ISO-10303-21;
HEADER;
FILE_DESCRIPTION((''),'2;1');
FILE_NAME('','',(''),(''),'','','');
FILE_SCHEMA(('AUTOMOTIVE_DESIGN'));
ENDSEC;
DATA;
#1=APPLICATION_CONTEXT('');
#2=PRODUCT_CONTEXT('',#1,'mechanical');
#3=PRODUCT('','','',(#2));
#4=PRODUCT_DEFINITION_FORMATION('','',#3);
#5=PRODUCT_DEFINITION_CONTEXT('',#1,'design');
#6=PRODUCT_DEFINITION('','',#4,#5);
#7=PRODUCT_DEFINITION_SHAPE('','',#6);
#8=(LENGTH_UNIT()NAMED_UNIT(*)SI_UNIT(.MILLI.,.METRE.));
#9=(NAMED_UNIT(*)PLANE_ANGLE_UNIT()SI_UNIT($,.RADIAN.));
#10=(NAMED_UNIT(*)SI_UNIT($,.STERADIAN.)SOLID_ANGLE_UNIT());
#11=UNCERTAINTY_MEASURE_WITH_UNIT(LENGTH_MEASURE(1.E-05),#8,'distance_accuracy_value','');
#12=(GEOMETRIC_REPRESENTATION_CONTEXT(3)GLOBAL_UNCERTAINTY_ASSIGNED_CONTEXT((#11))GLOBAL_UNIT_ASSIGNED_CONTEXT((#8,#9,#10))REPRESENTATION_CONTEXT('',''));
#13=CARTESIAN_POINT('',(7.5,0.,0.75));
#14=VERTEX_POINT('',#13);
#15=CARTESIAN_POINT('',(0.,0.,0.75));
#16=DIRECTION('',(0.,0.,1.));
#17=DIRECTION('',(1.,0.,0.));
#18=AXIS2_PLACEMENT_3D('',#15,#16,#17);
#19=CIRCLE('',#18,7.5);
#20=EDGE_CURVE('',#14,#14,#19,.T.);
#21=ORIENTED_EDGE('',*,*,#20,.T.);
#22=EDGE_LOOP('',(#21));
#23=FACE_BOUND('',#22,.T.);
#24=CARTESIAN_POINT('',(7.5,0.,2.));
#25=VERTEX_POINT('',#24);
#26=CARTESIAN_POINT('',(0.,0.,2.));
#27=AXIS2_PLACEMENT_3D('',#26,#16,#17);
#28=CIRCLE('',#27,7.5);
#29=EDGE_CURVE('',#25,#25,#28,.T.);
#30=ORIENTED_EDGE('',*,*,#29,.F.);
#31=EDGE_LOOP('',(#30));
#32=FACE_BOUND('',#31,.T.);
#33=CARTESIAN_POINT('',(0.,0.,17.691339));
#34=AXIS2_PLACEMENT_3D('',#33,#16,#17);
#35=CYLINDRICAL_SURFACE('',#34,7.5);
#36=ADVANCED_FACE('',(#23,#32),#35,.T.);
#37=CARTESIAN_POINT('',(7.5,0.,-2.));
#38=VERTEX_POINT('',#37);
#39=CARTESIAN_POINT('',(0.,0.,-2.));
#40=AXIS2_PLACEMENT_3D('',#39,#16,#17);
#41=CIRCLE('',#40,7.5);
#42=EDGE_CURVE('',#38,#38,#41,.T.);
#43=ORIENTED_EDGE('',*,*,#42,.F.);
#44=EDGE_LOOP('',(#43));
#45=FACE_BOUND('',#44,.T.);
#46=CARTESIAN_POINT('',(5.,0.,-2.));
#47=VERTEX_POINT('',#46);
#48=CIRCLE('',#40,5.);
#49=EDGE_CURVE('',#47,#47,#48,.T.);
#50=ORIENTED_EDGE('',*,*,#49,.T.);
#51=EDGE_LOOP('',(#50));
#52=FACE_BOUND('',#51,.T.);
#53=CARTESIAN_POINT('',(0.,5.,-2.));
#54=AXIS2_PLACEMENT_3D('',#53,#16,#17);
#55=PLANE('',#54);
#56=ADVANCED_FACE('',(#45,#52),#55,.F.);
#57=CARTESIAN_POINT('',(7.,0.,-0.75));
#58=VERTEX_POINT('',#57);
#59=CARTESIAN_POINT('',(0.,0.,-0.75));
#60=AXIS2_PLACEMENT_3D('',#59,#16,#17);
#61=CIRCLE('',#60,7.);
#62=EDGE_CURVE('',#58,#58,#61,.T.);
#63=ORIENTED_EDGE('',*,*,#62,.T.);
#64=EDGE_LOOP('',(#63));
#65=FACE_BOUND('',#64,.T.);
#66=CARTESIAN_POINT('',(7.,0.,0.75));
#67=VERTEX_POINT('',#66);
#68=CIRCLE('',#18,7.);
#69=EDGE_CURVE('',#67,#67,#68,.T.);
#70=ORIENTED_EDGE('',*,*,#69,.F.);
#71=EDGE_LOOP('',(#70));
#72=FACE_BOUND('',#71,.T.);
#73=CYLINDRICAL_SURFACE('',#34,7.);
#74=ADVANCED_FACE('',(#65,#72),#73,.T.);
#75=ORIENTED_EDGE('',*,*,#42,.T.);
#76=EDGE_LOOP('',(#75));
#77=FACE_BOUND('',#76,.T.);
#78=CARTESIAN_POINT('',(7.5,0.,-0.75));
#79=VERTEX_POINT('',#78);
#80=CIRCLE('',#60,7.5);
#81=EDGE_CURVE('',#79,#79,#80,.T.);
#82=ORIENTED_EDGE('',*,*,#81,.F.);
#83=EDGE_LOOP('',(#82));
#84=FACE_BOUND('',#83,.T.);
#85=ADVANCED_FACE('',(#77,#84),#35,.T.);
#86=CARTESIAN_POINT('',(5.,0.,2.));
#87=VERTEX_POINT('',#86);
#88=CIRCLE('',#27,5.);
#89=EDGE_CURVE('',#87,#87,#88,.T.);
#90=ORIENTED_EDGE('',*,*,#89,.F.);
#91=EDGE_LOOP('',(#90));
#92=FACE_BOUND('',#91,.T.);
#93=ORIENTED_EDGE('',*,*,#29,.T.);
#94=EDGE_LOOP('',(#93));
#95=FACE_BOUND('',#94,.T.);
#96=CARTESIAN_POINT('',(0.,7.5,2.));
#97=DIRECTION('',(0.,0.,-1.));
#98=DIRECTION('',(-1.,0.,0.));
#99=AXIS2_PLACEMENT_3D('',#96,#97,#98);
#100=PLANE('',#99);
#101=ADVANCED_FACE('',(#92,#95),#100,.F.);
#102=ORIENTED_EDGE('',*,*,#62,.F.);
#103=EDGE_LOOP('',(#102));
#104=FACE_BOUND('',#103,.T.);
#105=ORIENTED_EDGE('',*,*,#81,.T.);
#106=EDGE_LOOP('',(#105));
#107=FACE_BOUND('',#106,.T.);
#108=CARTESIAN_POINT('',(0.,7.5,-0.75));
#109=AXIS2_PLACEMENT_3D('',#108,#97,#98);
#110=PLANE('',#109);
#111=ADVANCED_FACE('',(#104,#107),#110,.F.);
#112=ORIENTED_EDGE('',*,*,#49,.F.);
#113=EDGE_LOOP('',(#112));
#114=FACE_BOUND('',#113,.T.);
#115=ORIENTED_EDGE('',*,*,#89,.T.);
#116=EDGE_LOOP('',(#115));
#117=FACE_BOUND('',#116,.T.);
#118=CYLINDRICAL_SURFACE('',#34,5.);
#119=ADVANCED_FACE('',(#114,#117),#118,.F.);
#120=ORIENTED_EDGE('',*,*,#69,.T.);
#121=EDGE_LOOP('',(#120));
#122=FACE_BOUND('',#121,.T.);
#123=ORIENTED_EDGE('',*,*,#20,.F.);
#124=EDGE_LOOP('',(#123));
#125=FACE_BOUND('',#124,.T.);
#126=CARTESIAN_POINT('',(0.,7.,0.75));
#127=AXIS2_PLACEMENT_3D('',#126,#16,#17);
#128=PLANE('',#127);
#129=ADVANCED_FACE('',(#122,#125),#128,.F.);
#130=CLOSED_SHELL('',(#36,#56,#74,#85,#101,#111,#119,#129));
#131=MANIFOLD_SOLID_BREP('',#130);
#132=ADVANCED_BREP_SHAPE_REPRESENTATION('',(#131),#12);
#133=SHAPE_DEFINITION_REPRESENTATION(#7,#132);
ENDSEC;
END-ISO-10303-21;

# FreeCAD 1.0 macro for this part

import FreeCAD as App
import Part
import Sketcher

doc = App.newDocument("Part")
body = doc.addObject("PartDesign::Body", "Body")

sketch1 = doc.addObject("Sketcher::SketchObject", "Sketch")
body.addObject(sketch1)
sketch1.AttachmentSupport = (doc.YZ_Plane, [""])
sketch1.MapMode = "FlatFace"
sketch1.addGeometry(Part.LineSegment(App.Vector(5, 2, 0), App.Vector(5, -2, 0)), False)
sketch1.addGeometry(Part.LineSegment(App.Vector(5, -2, 0), App.Vector(7.5, -2, 0)), False)
sketch1.addGeometry(Part.LineSegment(App.Vector(7.5, -2, 0), App.Vector(7.5, -0.8, 0)), False)
sketch1.addGeometry(Part.LineSegment(App.Vector(7.5, -0.8, 0), App.Vector(7, -0.8, 0)), False)
sketch1.addGeometry(Part.LineSegment(App.Vector(7, -0.8, 0), App.Vector(7, 0.8, 0)), False)
sketch1.addGeometry(Part.LineSegment(App.Vector(7, 0.8, 0), App.Vector(7.5, 0.8, 0)), False)
sketch1.addGeometry(Part.LineSegment(App.Vector(7.5, 0.8, 0), App.Vector(7.5, 2, 0)), False)
sketch1.addGeometry(Part.LineSegment(App.Vector(7.5, 2, 0), App.Vector(5, 2, 0)), False)
sketch1.addConstraint(Sketcher.Constraint("Coincident", 0, 2, 1, 1))
sketch1.addConstraint(Sketcher.Constraint("Coincident", 1, 2, 2, 1))
sketch1.addConstraint(Sketcher.Constraint("Coincident", 2, 2, 3, 1))
sketch1.addConstraint(Sketcher.Constraint("Coincident", 3, 2, 4, 1))
sketch1.addConstraint(Sketcher.Constraint("Coincident", 4, 2, 5, 1))
sketch1.addConstraint(Sketcher.Constraint("Coincident", 5, 2, 6, 1))
sketch1.addConstraint(Sketcher.Constraint("Coincident", 6, 2, 7, 1))
sketch1.addConstraint(Sketcher.Constraint("Coincident", 7, 2, 0, 1))
sketch1.addConstraint(Sketcher.Constraint("Vertical", 0))
sketch1.addConstraint(Sketcher.Constraint("Horizontal", 1))
sketch1.addConstraint(Sketcher.Constraint("Vertical", 2))
sketch1.addConstraint(Sketcher.Constraint("Horizontal", 3))
sketch1.addConstraint(Sketcher.Constraint("Vertical", 4))
sketch1.addConstraint(Sketcher.Constraint("Horizontal", 5))
sketch1.addConstraint(Sketcher.Constraint("Vertical", 6))
sketch1.addConstraint(Sketcher.Constraint("Horizontal", 7))
sketch1.addConstraint(Sketcher.Constraint("Symmetric", 2, 2, 5, 2, -1))
sketch1.addConstraint(Sketcher.Constraint("Equal", 2, 6))
sketch1.addConstraint(Sketcher.Constraint("DistanceY", 0, 2, 0, 1, 4.0))
sketch1.addConstraint(Sketcher.Constraint("DistanceX", 1, 1, 1, 2, 2.5))
sketch1.addConstraint(Sketcher.Constraint("DistanceX", 3, 2, 3, 1, 0.5))
sketch1.addConstraint(Sketcher.Constraint("DistanceY", 4, 1, 4, 2, 1.5))
sketch1.addConstraint(Sketcher.Constraint("DistanceX", -1, 1, 0, 2, 5.0))
revolution = doc.addObject("PartDesign::Revolution", "Revolution")
body.addObject(revolution)
revolution.Profile = sketch1
revolution.ReferenceAxis = (sketch1, ["V_Axis"])
revolution.Angle = 360

doc.recompute()
